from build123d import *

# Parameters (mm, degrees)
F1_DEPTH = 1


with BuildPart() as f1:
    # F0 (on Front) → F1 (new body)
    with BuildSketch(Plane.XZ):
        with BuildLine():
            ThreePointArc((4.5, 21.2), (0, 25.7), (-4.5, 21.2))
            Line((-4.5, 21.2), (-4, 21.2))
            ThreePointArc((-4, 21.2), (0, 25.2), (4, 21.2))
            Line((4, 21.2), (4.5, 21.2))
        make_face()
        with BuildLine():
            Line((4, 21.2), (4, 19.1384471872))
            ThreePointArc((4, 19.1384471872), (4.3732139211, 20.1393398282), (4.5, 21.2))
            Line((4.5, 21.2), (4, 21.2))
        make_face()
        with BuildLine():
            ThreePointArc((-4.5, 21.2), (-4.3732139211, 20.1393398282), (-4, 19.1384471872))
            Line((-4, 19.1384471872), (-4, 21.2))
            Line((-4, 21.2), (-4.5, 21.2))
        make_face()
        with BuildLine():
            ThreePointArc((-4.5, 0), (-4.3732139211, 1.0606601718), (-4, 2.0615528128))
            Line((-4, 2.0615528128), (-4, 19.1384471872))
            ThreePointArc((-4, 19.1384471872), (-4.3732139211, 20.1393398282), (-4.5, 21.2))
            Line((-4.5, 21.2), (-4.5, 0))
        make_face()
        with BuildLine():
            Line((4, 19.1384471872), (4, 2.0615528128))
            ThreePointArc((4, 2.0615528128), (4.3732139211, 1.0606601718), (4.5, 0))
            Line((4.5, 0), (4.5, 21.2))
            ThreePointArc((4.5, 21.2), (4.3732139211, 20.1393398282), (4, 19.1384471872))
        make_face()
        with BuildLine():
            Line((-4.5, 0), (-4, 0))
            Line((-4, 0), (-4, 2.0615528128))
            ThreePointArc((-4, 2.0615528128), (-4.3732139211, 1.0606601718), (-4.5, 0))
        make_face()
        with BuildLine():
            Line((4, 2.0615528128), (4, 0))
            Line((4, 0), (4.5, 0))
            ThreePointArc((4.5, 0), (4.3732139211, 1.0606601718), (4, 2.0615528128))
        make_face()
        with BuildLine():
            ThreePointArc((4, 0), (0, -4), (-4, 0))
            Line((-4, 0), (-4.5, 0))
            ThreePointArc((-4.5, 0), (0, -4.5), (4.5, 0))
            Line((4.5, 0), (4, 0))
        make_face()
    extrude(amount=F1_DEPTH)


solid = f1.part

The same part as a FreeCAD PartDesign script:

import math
import FreeCAD as App
import Part
import Sketcher
Q = App.Units.Quantity

doc = App.newDocument("Part")
body = doc.addObject("PartDesign::Body", "Body")

# Sketch on XZ plane
sketch1 = body.newObject("Sketcher::SketchObject", "Sketch")
sketch1.AttachmentSupport = (doc.getObject("XZ_Plane"), [""])
sketch1.MapMode = "FlatFace"
sketch1.addGeometry([
    Part.ArcOfCircle(Part.Circle(App.Vector(0, 21.2, 0), App.Vector(0, 0, 1), 4.5), math.radians(0), math.radians(180)),  # 0
    Part.LineSegment(App.Vector(-4.5, 21.2, 0), App.Vector(-4.5, 0, 0)),  # 1
    Part.ArcOfCircle(Part.Circle(App.Vector(0, 0, 0), App.Vector(0, 0, 1), 4.5), math.radians(180), math.radians(360)),  # 2
    Part.LineSegment(App.Vector(4.5, 0, 0), App.Vector(4.5, 21.2, 0)),  # 3
    Part.LineSegment(App.Vector(-4, 0, 0), App.Vector(-4, 21.2, 0)),  # 4
    Part.ArcOfCircle(Part.Circle(App.Vector(0, 21.2, 0), App.Vector(0, 0, 1), 4), math.radians(0), math.radians(180)),  # 5
    Part.LineSegment(App.Vector(4, 21.2, 0), App.Vector(4, 0, 0)),  # 6
    Part.ArcOfCircle(Part.Circle(App.Vector(0, 0, 0), App.Vector(0, 0, 1), 4), math.radians(180), math.radians(360)),  # 7
], False)
sketch1.addConstraint([
    Sketcher.Constraint("Tangent", 0, 2, 1, 1),
    Sketcher.Constraint("Tangent", 1, 2, 2, 1),
    Sketcher.Constraint("Tangent", 2, 2, 3, 1),
    Sketcher.Constraint("Tangent", 3, 2, 0, 1),
    Sketcher.Constraint("Tangent", 4, 2, 5, 2),
    Sketcher.Constraint("Tangent", 5, 1, 6, 1),
    Sketcher.Constraint("Tangent", 6, 2, 7, 2),
    Sketcher.Constraint("Tangent", 7, 1, 4, 1),
    Sketcher.Constraint("Vertical", 1),
    Sketcher.Constraint("Vertical", 3),
    Sketcher.Constraint("Vertical", 4),
    Sketcher.Constraint("Vertical", 6),
    Sketcher.Constraint("Coincident", 2, 3, -1, 1),
    Sketcher.Constraint("Coincident", 7, 3, -1, 1),
    Sketcher.Constraint("Horizontal", 5, 3, 0, 2),
    Sketcher.Constraint("Radius", 5, Q("4 mm")),
    Sketcher.Constraint("Radius", 0, Q("4.5 mm")),
    Sketcher.Constraint("DistanceY", 1, 2, 1, 1, Q("21.2 mm")),
])
pad1 = body.newObject("PartDesign::Pad", "Pad")
pad1.Profile = sketch1
pad1.Length = 1

doc.recompute()
